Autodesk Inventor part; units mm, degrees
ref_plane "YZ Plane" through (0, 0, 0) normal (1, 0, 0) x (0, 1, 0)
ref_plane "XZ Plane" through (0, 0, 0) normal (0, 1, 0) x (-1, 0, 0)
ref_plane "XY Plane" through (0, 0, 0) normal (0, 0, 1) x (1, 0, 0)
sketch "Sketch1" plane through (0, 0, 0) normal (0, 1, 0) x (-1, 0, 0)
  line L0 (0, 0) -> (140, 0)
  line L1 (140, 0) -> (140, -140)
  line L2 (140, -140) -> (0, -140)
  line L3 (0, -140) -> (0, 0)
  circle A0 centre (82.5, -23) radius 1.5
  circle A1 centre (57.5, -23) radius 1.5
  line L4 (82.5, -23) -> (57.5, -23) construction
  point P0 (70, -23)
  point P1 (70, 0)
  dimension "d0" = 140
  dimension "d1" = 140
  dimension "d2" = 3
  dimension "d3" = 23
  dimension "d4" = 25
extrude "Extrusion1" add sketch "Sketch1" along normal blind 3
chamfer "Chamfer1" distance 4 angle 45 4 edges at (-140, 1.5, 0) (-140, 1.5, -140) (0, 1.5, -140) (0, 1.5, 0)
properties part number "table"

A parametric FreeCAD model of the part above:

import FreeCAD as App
import Part
import Sketcher
from FreeCAD import Vector


def edges_at(feature, points):
    """Names of the edges that pass closest to the given points."""
    edges = feature.Shape.Edges
    near = lambda p: min(range(len(edges)), key=lambda i: edges[i].distToShape(Part.Vertex(*p))[0])
    return sorted({f"Edge{near(p) + 1}" for p in points})

doc = App.newDocument("Part")
body = doc.addObject("PartDesign::Body", "Body")

# Sketch on XZ plane
sketch1 = body.newObject("Sketcher::SketchObject", "Sketch")
sketch1.AttachmentSupport = (doc.getObject("XZ_Plane"), [""])
sketch1.MapMode = "FlatFace"
sketch1.addGeometry(Part.LineSegment(Vector(-140, 0, 0), Vector(0, 0, 0)), False)
sketch1.addGeometry(Part.LineSegment(Vector(0, 0, 0), Vector(0, -140, 0)), False)
sketch1.addGeometry(Part.LineSegment(Vector(0, -140, 0), Vector(-140, -140, 0)), False)
sketch1.addGeometry(Part.LineSegment(Vector(-140, -140, 0), Vector(-140, 0, 0)), False)
sketch1.addGeometry(Part.Circle(Vector(-57.5, -23, 0), Vector(0, 0, 1), 1.5), False)
sketch1.addGeometry(Part.Circle(Vector(-82.5, -23, 0), Vector(0, 0, 1), 1.5), False)
sketch1.addConstraint(Sketcher.Constraint("Coincident", 0, 2, 1, 1))
sketch1.addConstraint(Sketcher.Constraint("Coincident", 1, 2, 2, 1))
sketch1.addConstraint(Sketcher.Constraint("Coincident", 2, 2, 3, 1))
sketch1.addConstraint(Sketcher.Constraint("Coincident", 3, 2, 0, 1))
sketch1.addConstraint(Sketcher.Constraint("Horizontal", 0))
sketch1.addConstraint(Sketcher.Constraint("Vertical", 1))
sketch1.addConstraint(Sketcher.Constraint("Horizontal", 2))
sketch1.addConstraint(Sketcher.Constraint("Vertical", 3))
sketch1.addConstraint(Sketcher.Constraint("Coincident", 0, 2, -1, 1))
sketch1.addConstraint(Sketcher.Constraint("Equal", 4, 5))
sketch1.addConstraint(Sketcher.Constraint("Horizontal", 4, 3, 5, 3))
sketch1.addConstraint(Sketcher.Constraint("Equal", 2, 1))
sketch1.addConstraint(Sketcher.Constraint("Diameter", 4, 3.0))
sketch1.addConstraint(Sketcher.Constraint("DistanceX", 0, 1, 0, 2, 140.0))
sketch1.addConstraint(Sketcher.Constraint("DistanceY", 4, 3, -1, 1, 23.0))
sketch1.addConstraint(Sketcher.Constraint("DistanceX", 5, 3, 4, 3, 25.0))
sketch1.addConstraint(Sketcher.Constraint("DistanceX", 4, 3, -1, 1, 57.5))
pad1 = body.newObject("PartDesign::Pad", "Pad")
pad1.Profile = sketch1
pad1.Length = 3
pad1.Reversed = True
doc.recompute()

chamfer = body.newObject("PartDesign::Chamfer", "Chamfer")
chamfer.Base = (pad1, edges_at(pad1, [
    (-140, 1.5, 0),
    (-140, 1.5, -140),
    (0, 1.5, -140),
    (0, 1.5, 0),
]))
chamfer.Size = 4

doc.recompute()
